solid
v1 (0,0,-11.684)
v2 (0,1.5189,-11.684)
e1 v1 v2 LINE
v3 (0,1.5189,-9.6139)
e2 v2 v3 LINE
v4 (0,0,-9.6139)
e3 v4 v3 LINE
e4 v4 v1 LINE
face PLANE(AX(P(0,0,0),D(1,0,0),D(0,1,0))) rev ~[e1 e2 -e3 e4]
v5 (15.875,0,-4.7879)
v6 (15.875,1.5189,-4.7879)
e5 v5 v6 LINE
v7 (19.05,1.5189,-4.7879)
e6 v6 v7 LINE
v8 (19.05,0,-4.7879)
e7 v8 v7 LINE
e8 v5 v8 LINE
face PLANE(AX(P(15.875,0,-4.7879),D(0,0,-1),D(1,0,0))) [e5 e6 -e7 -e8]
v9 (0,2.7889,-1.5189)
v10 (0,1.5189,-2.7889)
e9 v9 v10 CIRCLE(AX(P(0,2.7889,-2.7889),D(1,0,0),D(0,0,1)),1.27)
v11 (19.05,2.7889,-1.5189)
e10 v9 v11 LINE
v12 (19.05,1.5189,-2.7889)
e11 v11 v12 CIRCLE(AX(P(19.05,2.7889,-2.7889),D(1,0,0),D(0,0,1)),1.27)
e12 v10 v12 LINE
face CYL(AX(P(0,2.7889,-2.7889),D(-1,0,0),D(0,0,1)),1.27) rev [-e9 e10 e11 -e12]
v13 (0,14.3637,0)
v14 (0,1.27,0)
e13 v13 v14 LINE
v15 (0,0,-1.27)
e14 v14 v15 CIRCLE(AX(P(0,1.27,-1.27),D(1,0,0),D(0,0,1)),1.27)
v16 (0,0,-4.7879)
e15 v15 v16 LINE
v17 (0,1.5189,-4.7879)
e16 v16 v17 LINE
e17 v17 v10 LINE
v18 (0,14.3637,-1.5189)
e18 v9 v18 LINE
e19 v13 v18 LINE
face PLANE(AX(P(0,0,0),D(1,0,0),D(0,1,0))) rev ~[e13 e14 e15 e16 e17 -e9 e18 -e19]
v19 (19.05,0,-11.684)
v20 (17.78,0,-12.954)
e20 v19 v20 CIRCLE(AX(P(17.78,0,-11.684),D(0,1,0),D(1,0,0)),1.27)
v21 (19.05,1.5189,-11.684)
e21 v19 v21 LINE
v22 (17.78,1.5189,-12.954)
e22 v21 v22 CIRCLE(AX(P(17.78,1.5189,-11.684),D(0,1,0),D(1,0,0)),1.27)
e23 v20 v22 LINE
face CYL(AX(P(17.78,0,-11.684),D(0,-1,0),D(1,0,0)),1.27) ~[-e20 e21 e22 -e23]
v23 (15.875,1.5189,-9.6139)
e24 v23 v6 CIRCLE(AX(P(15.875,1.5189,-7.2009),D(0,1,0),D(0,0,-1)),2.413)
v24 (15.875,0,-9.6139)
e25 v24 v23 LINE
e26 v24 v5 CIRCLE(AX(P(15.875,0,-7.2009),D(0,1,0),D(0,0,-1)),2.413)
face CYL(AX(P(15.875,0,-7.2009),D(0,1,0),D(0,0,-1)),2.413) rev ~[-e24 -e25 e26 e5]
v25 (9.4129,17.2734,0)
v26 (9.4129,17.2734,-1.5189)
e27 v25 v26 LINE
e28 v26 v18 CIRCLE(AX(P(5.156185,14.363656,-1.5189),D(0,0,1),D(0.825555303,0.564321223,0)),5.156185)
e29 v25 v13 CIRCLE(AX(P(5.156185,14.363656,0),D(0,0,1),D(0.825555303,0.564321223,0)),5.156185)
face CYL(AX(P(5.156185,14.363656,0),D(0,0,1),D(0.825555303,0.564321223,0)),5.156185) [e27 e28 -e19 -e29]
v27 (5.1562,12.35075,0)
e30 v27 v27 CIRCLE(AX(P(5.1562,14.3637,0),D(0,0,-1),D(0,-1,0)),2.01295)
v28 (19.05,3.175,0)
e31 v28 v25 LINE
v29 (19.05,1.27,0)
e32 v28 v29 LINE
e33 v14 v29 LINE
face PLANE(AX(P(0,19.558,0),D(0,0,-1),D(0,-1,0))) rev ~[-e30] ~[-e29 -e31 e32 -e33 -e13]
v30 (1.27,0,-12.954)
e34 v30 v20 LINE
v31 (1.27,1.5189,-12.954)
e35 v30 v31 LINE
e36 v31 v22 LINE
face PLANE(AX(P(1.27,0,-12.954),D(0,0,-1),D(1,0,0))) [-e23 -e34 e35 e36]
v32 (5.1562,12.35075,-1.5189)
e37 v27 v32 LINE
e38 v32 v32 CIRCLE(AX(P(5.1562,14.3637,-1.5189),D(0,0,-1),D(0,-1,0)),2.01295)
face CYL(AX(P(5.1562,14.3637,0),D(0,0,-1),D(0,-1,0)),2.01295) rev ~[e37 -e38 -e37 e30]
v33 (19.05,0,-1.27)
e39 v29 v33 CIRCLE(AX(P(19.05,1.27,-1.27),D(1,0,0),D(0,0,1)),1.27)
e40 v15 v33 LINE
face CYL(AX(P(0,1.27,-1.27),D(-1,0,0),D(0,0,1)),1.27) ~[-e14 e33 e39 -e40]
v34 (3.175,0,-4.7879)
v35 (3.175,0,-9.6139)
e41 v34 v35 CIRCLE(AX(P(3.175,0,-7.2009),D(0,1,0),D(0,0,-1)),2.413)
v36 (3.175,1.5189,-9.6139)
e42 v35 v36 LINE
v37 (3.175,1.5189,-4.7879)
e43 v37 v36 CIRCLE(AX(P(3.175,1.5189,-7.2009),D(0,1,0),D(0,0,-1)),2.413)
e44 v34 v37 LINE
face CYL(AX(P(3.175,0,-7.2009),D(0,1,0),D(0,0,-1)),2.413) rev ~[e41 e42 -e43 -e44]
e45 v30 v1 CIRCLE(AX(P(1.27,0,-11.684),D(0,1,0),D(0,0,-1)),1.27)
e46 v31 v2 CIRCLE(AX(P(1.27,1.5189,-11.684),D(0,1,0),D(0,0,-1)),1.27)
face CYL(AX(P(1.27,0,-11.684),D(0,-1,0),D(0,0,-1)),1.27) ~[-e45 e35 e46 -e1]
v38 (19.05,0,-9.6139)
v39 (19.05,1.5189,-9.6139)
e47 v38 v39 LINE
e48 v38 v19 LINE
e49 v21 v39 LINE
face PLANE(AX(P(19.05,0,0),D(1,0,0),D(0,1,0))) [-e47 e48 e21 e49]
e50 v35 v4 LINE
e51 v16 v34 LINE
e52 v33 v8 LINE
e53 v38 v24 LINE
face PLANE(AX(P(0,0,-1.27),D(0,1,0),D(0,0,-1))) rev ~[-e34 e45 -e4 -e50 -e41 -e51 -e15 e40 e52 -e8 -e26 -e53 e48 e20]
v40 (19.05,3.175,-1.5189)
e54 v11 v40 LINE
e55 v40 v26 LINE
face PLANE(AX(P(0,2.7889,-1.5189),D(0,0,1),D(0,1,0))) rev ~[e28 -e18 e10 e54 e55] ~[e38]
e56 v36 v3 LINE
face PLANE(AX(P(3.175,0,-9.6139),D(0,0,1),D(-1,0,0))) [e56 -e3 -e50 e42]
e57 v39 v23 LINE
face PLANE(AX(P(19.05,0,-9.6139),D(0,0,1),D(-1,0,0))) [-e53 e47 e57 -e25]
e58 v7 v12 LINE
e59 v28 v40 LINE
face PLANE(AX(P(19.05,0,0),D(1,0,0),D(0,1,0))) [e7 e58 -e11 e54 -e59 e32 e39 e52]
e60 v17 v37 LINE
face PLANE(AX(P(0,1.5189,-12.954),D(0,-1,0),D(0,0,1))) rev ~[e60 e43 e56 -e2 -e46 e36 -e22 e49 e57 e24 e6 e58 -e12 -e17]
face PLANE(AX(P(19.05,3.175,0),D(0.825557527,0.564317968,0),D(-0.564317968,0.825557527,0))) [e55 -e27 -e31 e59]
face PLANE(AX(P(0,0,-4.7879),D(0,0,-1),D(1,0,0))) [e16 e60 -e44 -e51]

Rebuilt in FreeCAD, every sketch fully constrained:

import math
import FreeCAD as App
import Part
import Sketcher

V = App.Vector
Q = App.Units.Quantity


def add_polygon(sketch, points):
    """Adds a closed chain of lines whose ends are joined by coincident constraints."""
    first, n = sketch.GeometryCount, len(points)
    for a, b in zip(points, points[1:] + points[:1]):
        sketch.addGeometry(Part.LineSegment(App.Vector(*a, 0), App.Vector(*b, 0)), False)
    for i in range(n):
        sketch.addConstraint(Sketcher.Constraint("Coincident", first + i, 2, first + (i + 1) % n, 1))

doc = App.newDocument("Part")
params = doc.addObject("Spreadsheet::Sheet", "Params")
for row, (alias, value) in enumerate([
    ("sketch1_radius", "0.05 in"),
    ("sketch1_width", "0.72 in"),
    ("sketch1_height", "0.46 in"),
    ("pad1_length", "0.75 in"),
    ("sketch2_radius", "0.203 in"),
    ("sketch2_width", "0.75 in"),
    ("sketch2_width2", "1.875 in"),
    ("sketch2_height", "1.925 in"),
    ("sketch2_height2", "0.125 in"),
    ("pocket1_length", "0.51 in"),
    ("hole_diameter", "0.1585 in"),
    ("hole_depth", "0.0597992 in"),
    ("sketch4_diameter", "0.19 in"),
    ("hole2_diameter", "0.19 in"),
    ("hole2_depth", "0.0597992 in"),
    ("sketch5_diameter", "0.19 in"),
    ("hole3_diameter", "0.19 in"),
    ("hole3_depth", "0.0597992 in"),
    ("sketch6_height", "0.19 in"),
    ("sketch6_width", "0.125 in"),
    ("pocket2_length", "0.0597992 in"),
    ("sketch7_height", "0.19 in"),
    ("sketch7_width", "0.125 in"),
    ("pocket3_length", "0.0597992 in"),
    ("sketch8_radius", "0.05 in"),
    ("sketch8_width", "0.75 in"),
    ("sketch8_height", "0.305 in"),
    ("pocket4_length", "0.0597992 in"),
], start=1):
    params.set(f"A{row}", alias)
    params.set(f"B{row}", "=" + value)
    params.setAlias(f"B{row}", alias)

body = doc.addObject("PartDesign::Body", "Body")

# Sketch on YZ plane
sketch1 = body.newObject("Sketcher::SketchObject", "Sketch")
sketch1.AttachmentSupport = (doc.getObject("YZ_Plane"), [""])
sketch1.MapMode = "FlatFace"
sketch1.addGeometry(Part.LineSegment(V(19.6, -1.5, 0), V(19.6, 0, 0)), False)
sketch1.addGeometry(Part.LineSegment(V(19.6, 0, 0), V(1.3, 0, 0)), False)
sketch1.addGeometry(Part.ArcOfCircle(Part.Circle(V(1.3, -1.3, 0), V(0, 0, 1), 1.3), math.radians(90), math.radians(180)), False)
sketch1.addGeometry(Part.LineSegment(V(0, -1.3, 0), V(0, -13, 0)), False)
sketch1.addGeometry(Part.LineSegment(V(0, -13, 0), V(1.5, -13, 0)), False)
sketch1.addGeometry(Part.LineSegment(V(1.5, -13, 0), V(1.5, -2.8, 0)), False)
sketch1.addGeometry(Part.ArcOfCircle(Part.Circle(V(2.8, -2.8, 0), V(0, 0, 1), 1.3), math.radians(90), math.radians(180)), False)
sketch1.addGeometry(Part.LineSegment(V(2.8, -1.5, 0), V(19.6, -1.5, 0)), False)
sketch1.addConstraint(Sketcher.Constraint("Coincident", 0, 2, 1, 1))
sketch1.addConstraint(Sketcher.Constraint("Tangent", 1, 2, 2, 1))
sketch1.addConstraint(Sketcher.Constraint("Tangent", 2, 2, 3, 1))
sketch1.addConstraint(Sketcher.Constraint("Coincident", 3, 2, 4, 1))
sketch1.addConstraint(Sketcher.Constraint("Coincident", 4, 2, 5, 1))
sketch1.addConstraint(Sketcher.Constraint("Tangent", 5, 2, 6, 2))
sketch1.addConstraint(Sketcher.Constraint("Tangent", 6, 1, 7, 1))
sketch1.addConstraint(Sketcher.Constraint("Coincident", 7, 2, 0, 1))
sketch1.addConstraint(Sketcher.Constraint("Vertical", 0))
sketch1.addConstraint(Sketcher.Constraint("Horizontal", 1))
sketch1.addConstraint(Sketcher.Constraint("Vertical", 3))
sketch1.addConstraint(Sketcher.Constraint("Horizontal", 4))
sketch1.addConstraint(Sketcher.Constraint("Vertical", 5))
sketch1.addConstraint(Sketcher.Constraint("Horizontal", 7))
sketch1.addConstraint(Sketcher.Constraint("Equal", 2, 6))
sketch1.addConstraint(Sketcher.Constraint("PointOnObject", 0, 2, -1))
sketch1.addConstraint(Sketcher.Constraint("PointOnObject", 2, 2, -2))
sketch1.addConstraint(Sketcher.Constraint("Equal", 4, 0))
sketch1.addConstraint(Sketcher.Constraint("Radius", 2, Q("0.05 in")))
sketch1.addConstraint(Sketcher.Constraint("DistanceX", 1, 2, 1, 1, Q("0.72 in")))
sketch1.addConstraint(Sketcher.Constraint("DistanceY", 3, 2, 3, 1, Q("0.46 in")))
sketch1.addConstraint(Sketcher.Constraint("DistanceX", 4, 1, 4, 2, Q("0.0598 in")))
sketch1.setExpression("Constraints[18]", "Params.sketch1_radius")
sketch1.setExpression("Constraints[19]", "Params.sketch1_width")
sketch1.setExpression("Constraints[20]", "Params.sketch1_height")
pad1 = body.newObject("PartDesign::Pad", "Pad")
pad1.Profile = sketch1
pad1.setExpression("Length", "Params.pad1_length")

# Sketch on XY plane
sketch2 = body.newObject("Sketcher::SketchObject", "Sketch001")
sketch2.AttachmentSupport = (doc.getObject("XY_Plane"), [""])
sketch2.MapMode = "FlatFace"
add_polygon(sketch2, [(-19.1, 29.3), (-19.1, -19.6), (28.6, -19.6), (28.6, 29.3)])  # lines 0-3
sketch2.addGeometry(Part.LineSegment(V(19.1, 0, 0), V(0, 0, 0)), False)  # 4
sketch2.addGeometry(Part.LineSegment(V(0, 0, 0), V(0, 14.4, 0)), False)  # 5
sketch2.addGeometry(Part.ArcOfCircle(Part.Circle(V(5.2, 14.4, 0), V(0, 0, 1), 5.2), math.radians(34), math.radians(180)), False)  # 6
sketch2.addGeometry(Part.LineSegment(V(9.4, 17.3, 0), V(19.1, 3.2, 0)), False)  # 7
sketch2.addGeometry(Part.LineSegment(V(19.1, 3.2, 0), V(19.1, 0, 0)), False)  # 8
sketch2.addConstraint(Sketcher.Constraint("Coincident", 4, 2, 5, 1))
sketch2.addConstraint(Sketcher.Constraint("Tangent", 5, 2, 6, 2))
sketch2.addConstraint(Sketcher.Constraint("Tangent", 6, 1, 7, 1))
sketch2.addConstraint(Sketcher.Constraint("Coincident", 7, 2, 8, 1))
sketch2.addConstraint(Sketcher.Constraint("Coincident", 8, 2, 4, 1))
sketch2.addConstraint(Sketcher.Constraint("Vertical", 0))
sketch2.addConstraint(Sketcher.Constraint("Horizontal", 1))
sketch2.addConstraint(Sketcher.Constraint("Vertical", 2))
sketch2.addConstraint(Sketcher.Constraint("Horizontal", 3))
sketch2.addConstraint(Sketcher.Constraint("Horizontal", 4))
sketch2.addConstraint(Sketcher.Constraint("Vertical", 5))
sketch2.addConstraint(Sketcher.Constraint("Vertical", 8))
sketch2.addConstraint(Sketcher.Constraint("Coincident", 4, 2, -1, 1))
sketch2.addConstraint(Sketcher.Constraint("Radius", 6, Q("0.203 in")))
sketch2.addConstraint(Sketcher.Constraint("DistanceX", 4, 2, 4, 1, Q("0.75 in")))
sketch2.addConstraint(Sketcher.Constraint("DistanceX", 1, 1, 1, 2, Q("1.875 in")))
sketch2.addConstraint(Sketcher.Constraint("DistanceY", 0, 2, 0, 1, Q("1.925 in")))
sketch2.addConstraint(Sketcher.Constraint("DistanceY", 8, 2, 8, 1, Q("0.125 in")))
sketch2.addConstraint(Sketcher.Constraint("DistanceX", 0, 2, -1, 1, Q("0.75 in")))
sketch2.addConstraint(Sketcher.Constraint("DistanceY", 0, 2, -1, 1, Q("0.77 in")))
sketch2.addConstraint(Sketcher.Constraint("DistanceY", 5, 1, 5, 2, Q("0.5655 in")))
sketch2.setExpression("Constraints[17]", "Params.sketch2_radius")
sketch2.setExpression("Constraints[18]", "Params.sketch2_width")
sketch2.setExpression("Constraints[19]", "Params.sketch2_width2")
sketch2.setExpression("Constraints[20]", "Params.sketch2_height")
sketch2.setExpression("Constraints[21]", "Params.sketch2_height2")
pocket1 = body.newObject("PartDesign::Pocket", "Pocket")
pocket1.Profile = sketch2
pocket1.setExpression("Length", "Params.pocket1_length")

# Sketch on XY plane
sketch3 = body.newObject("Sketcher::SketchObject", "Sketch002")
sketch3.AttachmentSupport = (doc.getObject("XY_Plane"), [""])
sketch3.MapMode = "FlatFace"
sketch3.addGeometry(Part.Circle(V(5.2, 14.4, 0), V(0, 0, 1), 2), False)
sketch3.addConstraint(Sketcher.Constraint("Diameter", 0, Q("0.1585 in")))
sketch3.addConstraint(Sketcher.Constraint("DistanceX", -1, 1, 0, 3, Q("0.203 in")))
sketch3.addConstraint(Sketcher.Constraint("DistanceY", -1, 1, 0, 3, Q("0.5655 in")))
doc.recompute()
hole = body.newObject("PartDesign::Hole", "Hole")
hole.Profile = sketch3
hole.ThreadType = "None"
hole.setExpression("Diameter", "Params.hole_diameter")
hole.DepthType = "Dimension"
hole.setExpression("Depth", "Params.hole_depth")
hole.DrillPoint = "Flat"

# Sketch on XZ plane
sketch4 = body.newObject("Sketcher::SketchObject", "Sketch003")
sketch4.AttachmentSupport = (doc.getObject("XZ_Plane"), [""])
sketch4.MapMode = "FlatFace"
sketch4.addGeometry(Part.Circle(V(3.2, -7.2, 0), V(0, 0, 1), 2.4), False)
sketch4.addConstraint(Sketcher.Constraint("Diameter", 0, Q("0.19 in")))
sketch4.addConstraint(Sketcher.Constraint("DistanceX", -1, 1, 0, 3, Q("0.125 in")))
sketch4.addConstraint(Sketcher.Constraint("DistanceY", 0, 3, -1, 1, Q("0.2835 in")))
sketch4.setExpression("Constraints[0]", "Params.sketch4_diameter")
doc.recompute()
hole2 = body.newObject("PartDesign::Hole", "Hole001")
hole2.Profile = sketch4
hole2.ThreadType = "None"
hole2.setExpression("Diameter", "Params.hole2_diameter")
hole2.DepthType = "Dimension"
hole2.setExpression("Depth", "Params.hole2_depth")
hole2.DrillPoint = "Flat"

# Sketch on XZ plane
sketch5 = body.newObject("Sketcher::SketchObject", "Sketch004")
sketch5.AttachmentSupport = (doc.getObject("XZ_Plane"), [""])
sketch5.MapMode = "FlatFace"
sketch5.addGeometry(Part.Circle(V(15.9, -7.2, 0), V(0, 0, 1), 2.4), False)
sketch5.addConstraint(Sketcher.Constraint("Diameter", 0, Q("0.19 in")))
sketch5.addConstraint(Sketcher.Constraint("DistanceX", -1, 1, 0, 3, Q("0.625 in")))
sketch5.addConstraint(Sketcher.Constraint("DistanceY", 0, 3, -1, 1, Q("0.2835 in")))
sketch5.setExpression("Constraints[0]", "Params.sketch5_diameter")
doc.recompute()
hole3 = body.newObject("PartDesign::Hole", "Hole002")
hole3.Profile = sketch5
hole3.ThreadType = "None"
hole3.setExpression("Diameter", "Params.hole3_diameter")
hole3.DepthType = "Dimension"
hole3.setExpression("Depth", "Params.hole3_depth")
hole3.DrillPoint = "Flat"

# Sketch on XZ plane
sketch6 = body.newObject("Sketcher::SketchObject", "Sketch005")
sketch6.AttachmentSupport = (doc.getObject("XZ_Plane"), [""])
sketch6.MapMode = "FlatFace"
add_polygon(sketch6, [(3.2, -9.6), (0, -9.6), (0, -4.8), (3.2, -4.8)])  # lines 0-3
sketch6.addConstraint(Sketcher.Constraint("Horizontal", 0))
sketch6.addConstraint(Sketcher.Constraint("Vertical", 1))
sketch6.addConstraint(Sketcher.Constraint("Horizontal", 2))
sketch6.addConstraint(Sketcher.Constraint("Vertical", 3))
sketch6.addConstraint(Sketcher.Constraint("PointOnObject", 0, 2, -2))
sketch6.addConstraint(Sketcher.Constraint("DistanceY", 1, 1, 1, 2, Q("0.19 in")))
sketch6.addConstraint(Sketcher.Constraint("DistanceX", 0, 2, 0, 1, Q("0.125 in")))
sketch6.addConstraint(Sketcher.Constraint("DistanceY", 0, 2, -1, 1, Q("0.3785 in")))
sketch6.setExpression("Constraints[9]", "Params.sketch6_height")
sketch6.setExpression("Constraints[10]", "Params.sketch6_width")
pocket2 = body.newObject("PartDesign::Pocket", "Pocket001")
pocket2.Profile = sketch6
pocket2.setExpression("Length", "Params.pocket2_length")

# Sketch on XZ plane
sketch7 = body.newObject("Sketcher::SketchObject", "Sketch006")
sketch7.AttachmentSupport = (doc.getObject("XZ_Plane"), [""])
sketch7.MapMode = "FlatFace"
add_polygon(sketch7, [(19.1, -9.6), (15.9, -9.6), (15.9, -4.8), (19.1, -4.8)])  # lines 0-3
sketch7.addConstraint(Sketcher.Constraint("Horizontal", 0))
sketch7.addConstraint(Sketcher.Constraint("Vertical", 1))
sketch7.addConstraint(Sketcher.Constraint("Horizontal", 2))
sketch7.addConstraint(Sketcher.Constraint("Vertical", 3))
sketch7.addConstraint(Sketcher.Constraint("DistanceY", 1, 1, 1, 2, Q("0.19 in")))
sketch7.addConstraint(Sketcher.Constraint("DistanceX", 0, 2, 0, 1, Q("0.125 in")))
sketch7.addConstraint(Sketcher.Constraint("DistanceX", -1, 1, 2, 2, Q("0.75 in")))
sketch7.addConstraint(Sketcher.Constraint("DistanceY", 0, 2, -1, 1, Q("0.3785 in")))
sketch7.setExpression("Constraints[8]", "Params.sketch7_height")
sketch7.setExpression("Constraints[9]", "Params.sketch7_width")
pocket3 = body.newObject("PartDesign::Pocket", "Pocket002")
pocket3.Profile = sketch7
pocket3.setExpression("Length", "Params.pocket3_length")

# Sketch on XZ plane
sketch8 = body.newObject("Sketcher::SketchObject", "Sketch007")
sketch8.AttachmentSupport = (doc.getObject("XZ_Plane"), [""])
sketch8.MapMode = "FlatFace"
sketch8.addGeometry(Part.LineSegment(V(19.1, -19.4, 0), V(0, -19.4, 0)), False)
sketch8.addGeometry(Part.LineSegment(V(0, -19.4, 0), V(0, -11.7, 0)), False)
sketch8.addGeometry(Part.ArcOfCircle(Part.Circle(V(1.3, -11.7, 0), V(0, 0, 1), 1.3), math.radians(180), math.radians(270)), False)
sketch8.addGeometry(Part.LineSegment(V(1.3, -13, 0), V(17.8, -13, 0)), False)
sketch8.addGeometry(Part.ArcOfCircle(Part.Circle(V(17.8, -11.7, 0), V(0, 0, 1), 1.3), math.radians(-90), math.radians(0)), False)
sketch8.addGeometry(Part.LineSegment(V(19.1, -11.7, 0), V(19.1, -19.4, 0)), False)
sketch8.addConstraint(Sketcher.Constraint("Coincident", 0, 2, 1, 1))
sketch8.addConstraint(Sketcher.Constraint("Tangent", 1, 2, 2, 1))
sketch8.addConstraint(Sketcher.Constraint("Tangent", 2, 2, 3, 1))
sketch8.addConstraint(Sketcher.Constraint("Tangent", 3, 2, 4, 1))
sketch8.addConstraint(Sketcher.Constraint("Tangent", 4, 2, 5, 1))
sketch8.addConstraint(Sketcher.Constraint("Coincident", 5, 2, 0, 1))
sketch8.addConstraint(Sketcher.Constraint("Horizontal", 0))
sketch8.addConstraint(Sketcher.Constraint("Vertical", 1))
sketch8.addConstraint(Sketcher.Constraint("Horizontal", 3))
sketch8.addConstraint(Sketcher.Constraint("Vertical", 5))
sketch8.addConstraint(Sketcher.Constraint("Equal", 2, 4))
sketch8.addConstraint(Sketcher.Constraint("PointOnObject", 0, 2, -2))
sketch8.addConstraint(Sketcher.Constraint("Radius", 2, Q("0.05 in")))
sketch8.addConstraint(Sketcher.Constraint("DistanceX", 0, 2, 0, 1, Q("0.75 in")))
sketch8.addConstraint(Sketcher.Constraint("DistanceY", 1, 1, 1, 2, Q("0.305 in")))
sketch8.addConstraint(Sketcher.Constraint("DistanceY", 2, 3, -1, 1, Q("0.46 in")))
sketch8.setExpression("Constraints[12]", "Params.sketch8_radius")
sketch8.setExpression("Constraints[13]", "Params.sketch8_width")
sketch8.setExpression("Constraints[14]", "Params.sketch8_height")
pocket4 = body.newObject("PartDesign::Pocket", "Pocket003")
pocket4.Profile = sketch8
pocket4.setExpression("Length", "Params.pocket4_length")

doc.recompute()
